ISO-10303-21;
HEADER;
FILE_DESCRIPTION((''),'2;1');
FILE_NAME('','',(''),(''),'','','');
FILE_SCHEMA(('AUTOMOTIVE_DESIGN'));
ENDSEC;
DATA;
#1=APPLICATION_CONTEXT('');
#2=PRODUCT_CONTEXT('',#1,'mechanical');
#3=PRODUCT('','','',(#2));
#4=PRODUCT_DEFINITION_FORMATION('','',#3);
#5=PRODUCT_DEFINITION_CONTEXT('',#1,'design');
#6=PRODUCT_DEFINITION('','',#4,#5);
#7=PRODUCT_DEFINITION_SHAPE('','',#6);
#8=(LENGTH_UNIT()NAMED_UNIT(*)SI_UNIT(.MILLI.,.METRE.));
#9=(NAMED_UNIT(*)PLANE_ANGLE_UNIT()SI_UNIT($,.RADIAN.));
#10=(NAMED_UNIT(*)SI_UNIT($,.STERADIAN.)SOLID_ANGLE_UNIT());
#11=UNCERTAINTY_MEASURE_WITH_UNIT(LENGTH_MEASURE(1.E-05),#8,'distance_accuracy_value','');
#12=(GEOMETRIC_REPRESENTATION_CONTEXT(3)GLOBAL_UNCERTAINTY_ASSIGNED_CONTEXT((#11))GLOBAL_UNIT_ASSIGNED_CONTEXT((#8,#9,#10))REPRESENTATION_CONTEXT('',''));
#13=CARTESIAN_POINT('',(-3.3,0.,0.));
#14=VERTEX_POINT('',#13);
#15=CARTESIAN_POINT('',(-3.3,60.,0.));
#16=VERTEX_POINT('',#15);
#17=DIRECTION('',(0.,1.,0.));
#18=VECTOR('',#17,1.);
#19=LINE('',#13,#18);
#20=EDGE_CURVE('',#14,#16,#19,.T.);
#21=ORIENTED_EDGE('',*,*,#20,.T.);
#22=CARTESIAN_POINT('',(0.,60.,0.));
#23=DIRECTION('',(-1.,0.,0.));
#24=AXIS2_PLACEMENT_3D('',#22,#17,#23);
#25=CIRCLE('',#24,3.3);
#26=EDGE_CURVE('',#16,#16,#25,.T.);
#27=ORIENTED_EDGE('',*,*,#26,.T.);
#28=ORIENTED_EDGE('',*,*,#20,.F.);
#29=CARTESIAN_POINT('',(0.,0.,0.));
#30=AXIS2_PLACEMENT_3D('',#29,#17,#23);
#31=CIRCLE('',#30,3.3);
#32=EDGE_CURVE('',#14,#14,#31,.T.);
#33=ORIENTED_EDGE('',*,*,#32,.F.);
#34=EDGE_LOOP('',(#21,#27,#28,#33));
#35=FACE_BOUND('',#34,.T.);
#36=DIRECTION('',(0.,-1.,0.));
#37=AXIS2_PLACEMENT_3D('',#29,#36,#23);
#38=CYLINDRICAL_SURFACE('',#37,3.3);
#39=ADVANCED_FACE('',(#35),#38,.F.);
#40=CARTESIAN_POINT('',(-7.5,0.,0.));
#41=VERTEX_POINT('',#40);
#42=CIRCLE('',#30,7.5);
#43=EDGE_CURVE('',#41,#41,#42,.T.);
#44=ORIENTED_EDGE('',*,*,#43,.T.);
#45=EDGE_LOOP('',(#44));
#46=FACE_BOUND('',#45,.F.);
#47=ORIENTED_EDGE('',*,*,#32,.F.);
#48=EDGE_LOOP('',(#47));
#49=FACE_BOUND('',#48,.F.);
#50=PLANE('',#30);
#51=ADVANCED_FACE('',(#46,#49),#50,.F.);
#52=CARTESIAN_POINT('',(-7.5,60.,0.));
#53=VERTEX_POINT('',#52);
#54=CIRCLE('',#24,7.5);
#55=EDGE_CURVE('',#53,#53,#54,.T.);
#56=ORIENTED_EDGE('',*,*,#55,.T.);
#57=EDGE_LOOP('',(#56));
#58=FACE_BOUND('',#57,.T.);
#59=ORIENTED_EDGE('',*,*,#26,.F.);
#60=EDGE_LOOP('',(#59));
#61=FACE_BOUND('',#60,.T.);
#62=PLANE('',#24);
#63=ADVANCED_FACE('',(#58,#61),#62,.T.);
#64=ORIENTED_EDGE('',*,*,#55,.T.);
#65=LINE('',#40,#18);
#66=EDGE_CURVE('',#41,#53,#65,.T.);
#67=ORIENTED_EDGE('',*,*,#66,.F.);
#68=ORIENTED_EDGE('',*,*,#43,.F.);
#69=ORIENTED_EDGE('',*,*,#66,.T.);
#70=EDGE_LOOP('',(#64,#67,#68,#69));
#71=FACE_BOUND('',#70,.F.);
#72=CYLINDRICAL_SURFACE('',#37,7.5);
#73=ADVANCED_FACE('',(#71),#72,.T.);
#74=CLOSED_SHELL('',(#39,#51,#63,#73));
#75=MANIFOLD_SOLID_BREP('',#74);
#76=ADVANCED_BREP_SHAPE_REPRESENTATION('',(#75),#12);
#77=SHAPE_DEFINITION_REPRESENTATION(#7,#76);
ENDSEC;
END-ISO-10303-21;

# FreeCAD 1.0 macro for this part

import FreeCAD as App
import Part
import Sketcher

doc = App.newDocument("Part")
params = doc.addObject("Spreadsheet::Sheet", "Params")
for row, (alias, value) in enumerate([
    ("sketch1_diameter", "15 mm"),
    ("sketch1_diameter2", "6.6 mm"),
    ("pad1_length", "60 mm"),
], start=1):
    params.set(f"A{row}", alias)
    params.set(f"B{row}", "=" + value)
    params.setAlias(f"B{row}", alias)

body = doc.addObject("PartDesign::Body", "Body")

sketch1 = body.newObject("Sketcher::SketchObject", "Sketch")
sketch1.AttachmentSupport = (doc.getObject("XZ_Plane"), [""])
sketch1.MapMode = "FlatFace"
sketch1.addGeometry([
    Part.Circle(App.Vector(0, 0, 0), App.Vector(0, 0, 1), 7.5),
    Part.Circle(App.Vector(0, 0, 0), App.Vector(0, 0, 1), 3.3),
], False)
sketch1.addConstraint([
    Sketcher.Constraint("Coincident", 0, 3, -1, 1),
    Sketcher.Constraint("Coincident", 1, 3, -1, 1),
    Sketcher.Constraint("Diameter", 0, 15.0),
    Sketcher.Constraint("Diameter", 1, 6.6),
])
sketch1.setExpression("Constraints[2]", "Params.sketch1_diameter")
sketch1.setExpression("Constraints[3]", "Params.sketch1_diameter2")
pad1 = body.newObject("PartDesign::Pad", "Pad")
pad1.Profile = sketch1
pad1.setExpression("Length", "Params.pad1_length")
pad1.Reversed = True

doc.recompute()
